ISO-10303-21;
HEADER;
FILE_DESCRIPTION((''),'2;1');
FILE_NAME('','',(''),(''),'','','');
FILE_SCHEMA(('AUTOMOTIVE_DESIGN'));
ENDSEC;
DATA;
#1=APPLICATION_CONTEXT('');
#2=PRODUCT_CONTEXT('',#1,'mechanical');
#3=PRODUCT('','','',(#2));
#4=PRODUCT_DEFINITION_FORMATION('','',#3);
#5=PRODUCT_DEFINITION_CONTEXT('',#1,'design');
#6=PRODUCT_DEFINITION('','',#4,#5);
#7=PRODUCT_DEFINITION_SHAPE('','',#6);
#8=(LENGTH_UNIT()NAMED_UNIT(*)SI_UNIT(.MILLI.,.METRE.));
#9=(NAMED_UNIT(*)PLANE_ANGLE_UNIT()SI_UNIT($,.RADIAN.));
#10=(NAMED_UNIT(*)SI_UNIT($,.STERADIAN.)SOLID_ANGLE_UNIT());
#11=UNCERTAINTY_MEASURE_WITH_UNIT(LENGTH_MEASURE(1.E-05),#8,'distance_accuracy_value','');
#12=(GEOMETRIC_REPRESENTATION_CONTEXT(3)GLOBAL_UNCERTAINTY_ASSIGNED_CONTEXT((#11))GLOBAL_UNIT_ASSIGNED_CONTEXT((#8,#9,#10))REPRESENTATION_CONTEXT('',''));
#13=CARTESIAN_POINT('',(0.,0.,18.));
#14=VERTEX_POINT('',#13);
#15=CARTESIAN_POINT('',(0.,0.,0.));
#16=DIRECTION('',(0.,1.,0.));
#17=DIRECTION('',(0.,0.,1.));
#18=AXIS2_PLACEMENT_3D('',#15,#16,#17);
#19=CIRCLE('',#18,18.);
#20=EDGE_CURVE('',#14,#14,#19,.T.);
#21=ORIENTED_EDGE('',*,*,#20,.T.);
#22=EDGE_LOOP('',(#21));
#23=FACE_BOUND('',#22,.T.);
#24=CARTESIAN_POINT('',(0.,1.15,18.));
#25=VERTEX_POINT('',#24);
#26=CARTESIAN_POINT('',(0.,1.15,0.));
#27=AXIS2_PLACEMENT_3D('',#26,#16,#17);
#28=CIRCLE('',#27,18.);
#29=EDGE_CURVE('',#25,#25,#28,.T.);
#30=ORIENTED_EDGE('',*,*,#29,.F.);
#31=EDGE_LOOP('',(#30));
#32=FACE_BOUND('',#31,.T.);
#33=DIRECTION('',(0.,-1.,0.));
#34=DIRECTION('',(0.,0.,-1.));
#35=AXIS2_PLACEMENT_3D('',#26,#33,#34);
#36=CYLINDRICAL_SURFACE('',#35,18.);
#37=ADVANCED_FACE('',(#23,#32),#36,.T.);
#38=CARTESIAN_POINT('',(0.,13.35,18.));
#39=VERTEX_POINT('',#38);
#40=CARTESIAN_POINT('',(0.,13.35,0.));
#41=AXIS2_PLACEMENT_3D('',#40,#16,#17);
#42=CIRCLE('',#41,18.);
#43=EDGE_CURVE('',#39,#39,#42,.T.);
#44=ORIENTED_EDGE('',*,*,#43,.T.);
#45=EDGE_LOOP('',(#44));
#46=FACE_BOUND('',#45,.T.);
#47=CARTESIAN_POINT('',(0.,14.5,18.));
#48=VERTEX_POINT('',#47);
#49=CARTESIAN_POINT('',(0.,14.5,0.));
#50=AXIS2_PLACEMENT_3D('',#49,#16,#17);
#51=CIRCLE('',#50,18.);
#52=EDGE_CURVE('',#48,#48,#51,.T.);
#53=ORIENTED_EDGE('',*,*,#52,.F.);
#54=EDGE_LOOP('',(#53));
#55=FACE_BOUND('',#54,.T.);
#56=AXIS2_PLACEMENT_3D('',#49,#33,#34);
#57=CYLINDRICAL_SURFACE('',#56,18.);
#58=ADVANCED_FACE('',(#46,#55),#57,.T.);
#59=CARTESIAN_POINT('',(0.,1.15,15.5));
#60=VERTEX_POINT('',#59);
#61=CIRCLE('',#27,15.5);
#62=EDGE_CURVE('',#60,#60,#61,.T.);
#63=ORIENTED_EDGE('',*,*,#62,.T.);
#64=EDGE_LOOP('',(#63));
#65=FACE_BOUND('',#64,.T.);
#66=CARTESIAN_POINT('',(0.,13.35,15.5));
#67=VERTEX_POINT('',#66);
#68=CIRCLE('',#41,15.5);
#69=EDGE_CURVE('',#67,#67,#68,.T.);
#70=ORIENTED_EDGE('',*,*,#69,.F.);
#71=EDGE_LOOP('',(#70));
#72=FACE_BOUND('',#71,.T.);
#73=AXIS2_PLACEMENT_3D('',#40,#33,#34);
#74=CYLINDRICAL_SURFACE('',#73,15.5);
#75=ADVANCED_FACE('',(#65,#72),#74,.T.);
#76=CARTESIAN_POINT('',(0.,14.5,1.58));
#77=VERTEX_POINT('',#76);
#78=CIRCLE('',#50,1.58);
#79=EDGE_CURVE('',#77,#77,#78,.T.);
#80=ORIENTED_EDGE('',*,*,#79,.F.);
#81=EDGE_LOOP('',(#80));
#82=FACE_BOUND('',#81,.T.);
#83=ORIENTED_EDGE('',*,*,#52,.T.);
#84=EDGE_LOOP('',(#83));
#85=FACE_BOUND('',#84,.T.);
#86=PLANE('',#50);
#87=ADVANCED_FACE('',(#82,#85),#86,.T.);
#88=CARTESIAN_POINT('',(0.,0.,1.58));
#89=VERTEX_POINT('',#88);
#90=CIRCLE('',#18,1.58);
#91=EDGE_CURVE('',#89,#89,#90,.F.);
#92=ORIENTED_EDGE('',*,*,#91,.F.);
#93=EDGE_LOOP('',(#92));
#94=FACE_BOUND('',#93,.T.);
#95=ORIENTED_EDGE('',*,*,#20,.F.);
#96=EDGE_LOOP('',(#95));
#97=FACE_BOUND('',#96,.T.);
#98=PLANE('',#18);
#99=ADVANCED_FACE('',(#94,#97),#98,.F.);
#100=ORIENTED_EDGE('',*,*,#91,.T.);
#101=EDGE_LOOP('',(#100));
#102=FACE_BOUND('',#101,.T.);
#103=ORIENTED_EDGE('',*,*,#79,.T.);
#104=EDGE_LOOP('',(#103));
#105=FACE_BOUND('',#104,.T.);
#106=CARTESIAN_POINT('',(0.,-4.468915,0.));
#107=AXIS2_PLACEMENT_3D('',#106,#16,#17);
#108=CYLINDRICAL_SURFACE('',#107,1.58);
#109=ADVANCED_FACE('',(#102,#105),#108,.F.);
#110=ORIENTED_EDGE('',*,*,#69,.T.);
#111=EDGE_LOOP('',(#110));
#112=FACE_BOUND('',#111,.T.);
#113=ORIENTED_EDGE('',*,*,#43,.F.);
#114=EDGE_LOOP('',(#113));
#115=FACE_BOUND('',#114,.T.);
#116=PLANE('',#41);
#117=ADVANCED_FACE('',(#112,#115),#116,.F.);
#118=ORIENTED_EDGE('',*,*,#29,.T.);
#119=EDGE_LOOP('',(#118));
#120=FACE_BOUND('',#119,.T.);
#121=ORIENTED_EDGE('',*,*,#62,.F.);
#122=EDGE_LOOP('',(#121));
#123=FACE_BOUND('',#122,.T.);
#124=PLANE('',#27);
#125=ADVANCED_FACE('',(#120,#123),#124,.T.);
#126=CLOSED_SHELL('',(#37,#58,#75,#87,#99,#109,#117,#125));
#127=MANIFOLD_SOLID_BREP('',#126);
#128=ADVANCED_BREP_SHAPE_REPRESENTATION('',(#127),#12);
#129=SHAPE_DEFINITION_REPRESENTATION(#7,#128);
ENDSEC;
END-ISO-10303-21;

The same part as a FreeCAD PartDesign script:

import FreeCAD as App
import Part
import Sketcher

doc = App.newDocument("Part")
params = doc.addObject("Spreadsheet::Sheet", "Params")
for row, (alias, value) in enumerate([
    ("sketch1_diameter", "36 mm"),
    ("pad1_length", "1.15 mm"),
    ("sketch2_diameter", "31 mm"),
    ("pad2_length", "12.2 mm"),
    ("sketch3_diameter", "36 mm"),
    ("pad3_length", "1.15 mm"),
    ("sketch4_diameter", "3.16 mm"),
    ("pocket1_length", "14.5 mm"),
], start=1):
    params.set(f"A{row}", alias)
    params.set(f"B{row}", "=" + value)
    params.setAlias(f"B{row}", alias)

body = doc.addObject("PartDesign::Body", "Body")

# Sketch on XZ plane
sketch1 = body.newObject("Sketcher::SketchObject", "Sketch")
sketch1.AttachmentSupport = (doc.getObject("XZ_Plane"), [""])
sketch1.MapMode = "FlatFace"
sketch1.addGeometry(Part.Circle(App.Vector(0, 0, 0), App.Vector(0, 0, 1), 18), False)
sketch1.addConstraint([
    Sketcher.Constraint("Coincident", 0, 3, -1, 1),
    Sketcher.Constraint("Diameter", 0, 36.0),
])
sketch1.setExpression("Constraints[1]", "Params.sketch1_diameter")
pad1 = body.newObject("PartDesign::Pad", "Pad")
pad1.Profile = sketch1
pad1.setExpression("Length", "Params.pad1_length")
pad1.Reversed = True

# Sketch on XZ plane
sketch2 = body.newObject("Sketcher::SketchObject", "Sketch001")
sketch2.AttachmentSupport = (doc.getObject("XZ_Plane"), [""])
sketch2.MapMode = "FlatFace"
sketch2.AttachmentOffset = App.Placement(App.Vector(0, 0, -1.15), App.Rotation())
sketch2.addGeometry(Part.Circle(App.Vector(0, 0, 0), App.Vector(0, 0, 1), 15), False)
sketch2.addConstraint([
    Sketcher.Constraint("Coincident", 0, 3, -1, 1),
    Sketcher.Constraint("Diameter", 0, 31.0),
])
sketch2.setExpression("Constraints[1]", "Params.sketch2_diameter")
pad2 = body.newObject("PartDesign::Pad", "Pad001")
pad2.Profile = sketch2
pad2.setExpression("Length", "Params.pad2_length")
pad2.Reversed = True

# Sketch on XZ plane
sketch3 = body.newObject("Sketcher::SketchObject", "Sketch002")
sketch3.AttachmentSupport = (doc.getObject("XZ_Plane"), [""])
sketch3.MapMode = "FlatFace"
sketch3.AttachmentOffset = App.Placement(App.Vector(0, 0, -13.35), App.Rotation())
sketch3.addGeometry(Part.Circle(App.Vector(0, 0, 0), App.Vector(0, 0, 1), 18), False)
sketch3.addConstraint([
    Sketcher.Constraint("Coincident", 0, 3, -1, 1),
    Sketcher.Constraint("Diameter", 0, 36.0),
])
sketch3.setExpression("Constraints[1]", "Params.sketch3_diameter")
pad3 = body.newObject("PartDesign::Pad", "Pad002")
pad3.Profile = sketch3
pad3.setExpression("Length", "Params.pad3_length")
pad3.Reversed = True

# Sketch on XZ plane
sketch4 = body.newObject("Sketcher::SketchObject", "Sketch003")
sketch4.AttachmentSupport = (doc.getObject("XZ_Plane"), [""])
sketch4.MapMode = "FlatFace"
sketch4.AttachmentOffset = App.Placement(App.Vector(0, 0, -14.5), App.Rotation())
sketch4.addGeometry(Part.Circle(App.Vector(0, 0, 0), App.Vector(0, 0, 1), 1.6), False)
sketch4.addConstraint([
    Sketcher.Constraint("Coincident", 0, 3, -1, 1),
    Sketcher.Constraint("Diameter", 0, 3.16),
])
sketch4.setExpression("Constraints[1]", "Params.sketch4_diameter")
pocket1 = body.newObject("PartDesign::Pocket", "Pocket")
pocket1.Profile = sketch4
pocket1.setExpression("Length", "Params.pocket1_length")
pocket1.Reversed = True

doc.recompute()
